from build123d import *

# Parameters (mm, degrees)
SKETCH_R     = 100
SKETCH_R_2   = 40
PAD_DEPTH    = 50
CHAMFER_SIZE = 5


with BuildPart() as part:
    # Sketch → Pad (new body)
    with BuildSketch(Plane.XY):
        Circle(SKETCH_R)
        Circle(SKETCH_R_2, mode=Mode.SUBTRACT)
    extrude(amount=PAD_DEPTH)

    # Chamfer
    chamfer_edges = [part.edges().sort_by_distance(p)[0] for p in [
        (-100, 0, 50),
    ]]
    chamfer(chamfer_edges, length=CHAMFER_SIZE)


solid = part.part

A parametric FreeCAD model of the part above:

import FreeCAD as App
import Part
import Sketcher
from FreeCAD import Vector
Q = App.Units.Quantity


def edges_at(feature, points):
    """Names of the edges that pass closest to the given points."""
    edges = feature.Shape.Edges
    near = lambda p: min(range(len(edges)), key=lambda i: edges[i].distToShape(Part.Vertex(*p))[0])
    return sorted({f"Edge{near(p) + 1}" for p in points})

doc = App.newDocument("Part")
body = doc.addObject("PartDesign::Body", "Body")

# Sketch on XY plane
sketch1 = body.newObject("Sketcher::SketchObject", "Sketch")
sketch1.AttachmentSupport = (doc.getObject("XY_Plane"), [""])
sketch1.MapMode = "FlatFace"
sketch1.addGeometry([
    Part.Circle(Vector(0, 0, 0), Vector(0, 0, 1), 100),
    Part.Circle(Vector(0, 0, 0), Vector(0, 0, 1), 40),
], False)
sketch1.addConstraint([
    Sketcher.Constraint("Coincident", 0, 3, -1, 1),
    Sketcher.Constraint("Coincident", 1, 3, -1, 1),
    Sketcher.Constraint("Diameter", 0, Q("200 mm")),
    Sketcher.Constraint("Diameter", 1, Q("80 mm")),
])
pad1 = body.newObject("PartDesign::Pad", "Pad")
pad1.Profile = sketch1
pad1.Length = 50
doc.recompute()

chamfer = body.newObject("PartDesign::Chamfer", "Chamfer")
chamfer.Base = (pad1, edges_at(pad1, [(-100, 0, 50)]))
chamfer.Size = 5

doc.recompute()
